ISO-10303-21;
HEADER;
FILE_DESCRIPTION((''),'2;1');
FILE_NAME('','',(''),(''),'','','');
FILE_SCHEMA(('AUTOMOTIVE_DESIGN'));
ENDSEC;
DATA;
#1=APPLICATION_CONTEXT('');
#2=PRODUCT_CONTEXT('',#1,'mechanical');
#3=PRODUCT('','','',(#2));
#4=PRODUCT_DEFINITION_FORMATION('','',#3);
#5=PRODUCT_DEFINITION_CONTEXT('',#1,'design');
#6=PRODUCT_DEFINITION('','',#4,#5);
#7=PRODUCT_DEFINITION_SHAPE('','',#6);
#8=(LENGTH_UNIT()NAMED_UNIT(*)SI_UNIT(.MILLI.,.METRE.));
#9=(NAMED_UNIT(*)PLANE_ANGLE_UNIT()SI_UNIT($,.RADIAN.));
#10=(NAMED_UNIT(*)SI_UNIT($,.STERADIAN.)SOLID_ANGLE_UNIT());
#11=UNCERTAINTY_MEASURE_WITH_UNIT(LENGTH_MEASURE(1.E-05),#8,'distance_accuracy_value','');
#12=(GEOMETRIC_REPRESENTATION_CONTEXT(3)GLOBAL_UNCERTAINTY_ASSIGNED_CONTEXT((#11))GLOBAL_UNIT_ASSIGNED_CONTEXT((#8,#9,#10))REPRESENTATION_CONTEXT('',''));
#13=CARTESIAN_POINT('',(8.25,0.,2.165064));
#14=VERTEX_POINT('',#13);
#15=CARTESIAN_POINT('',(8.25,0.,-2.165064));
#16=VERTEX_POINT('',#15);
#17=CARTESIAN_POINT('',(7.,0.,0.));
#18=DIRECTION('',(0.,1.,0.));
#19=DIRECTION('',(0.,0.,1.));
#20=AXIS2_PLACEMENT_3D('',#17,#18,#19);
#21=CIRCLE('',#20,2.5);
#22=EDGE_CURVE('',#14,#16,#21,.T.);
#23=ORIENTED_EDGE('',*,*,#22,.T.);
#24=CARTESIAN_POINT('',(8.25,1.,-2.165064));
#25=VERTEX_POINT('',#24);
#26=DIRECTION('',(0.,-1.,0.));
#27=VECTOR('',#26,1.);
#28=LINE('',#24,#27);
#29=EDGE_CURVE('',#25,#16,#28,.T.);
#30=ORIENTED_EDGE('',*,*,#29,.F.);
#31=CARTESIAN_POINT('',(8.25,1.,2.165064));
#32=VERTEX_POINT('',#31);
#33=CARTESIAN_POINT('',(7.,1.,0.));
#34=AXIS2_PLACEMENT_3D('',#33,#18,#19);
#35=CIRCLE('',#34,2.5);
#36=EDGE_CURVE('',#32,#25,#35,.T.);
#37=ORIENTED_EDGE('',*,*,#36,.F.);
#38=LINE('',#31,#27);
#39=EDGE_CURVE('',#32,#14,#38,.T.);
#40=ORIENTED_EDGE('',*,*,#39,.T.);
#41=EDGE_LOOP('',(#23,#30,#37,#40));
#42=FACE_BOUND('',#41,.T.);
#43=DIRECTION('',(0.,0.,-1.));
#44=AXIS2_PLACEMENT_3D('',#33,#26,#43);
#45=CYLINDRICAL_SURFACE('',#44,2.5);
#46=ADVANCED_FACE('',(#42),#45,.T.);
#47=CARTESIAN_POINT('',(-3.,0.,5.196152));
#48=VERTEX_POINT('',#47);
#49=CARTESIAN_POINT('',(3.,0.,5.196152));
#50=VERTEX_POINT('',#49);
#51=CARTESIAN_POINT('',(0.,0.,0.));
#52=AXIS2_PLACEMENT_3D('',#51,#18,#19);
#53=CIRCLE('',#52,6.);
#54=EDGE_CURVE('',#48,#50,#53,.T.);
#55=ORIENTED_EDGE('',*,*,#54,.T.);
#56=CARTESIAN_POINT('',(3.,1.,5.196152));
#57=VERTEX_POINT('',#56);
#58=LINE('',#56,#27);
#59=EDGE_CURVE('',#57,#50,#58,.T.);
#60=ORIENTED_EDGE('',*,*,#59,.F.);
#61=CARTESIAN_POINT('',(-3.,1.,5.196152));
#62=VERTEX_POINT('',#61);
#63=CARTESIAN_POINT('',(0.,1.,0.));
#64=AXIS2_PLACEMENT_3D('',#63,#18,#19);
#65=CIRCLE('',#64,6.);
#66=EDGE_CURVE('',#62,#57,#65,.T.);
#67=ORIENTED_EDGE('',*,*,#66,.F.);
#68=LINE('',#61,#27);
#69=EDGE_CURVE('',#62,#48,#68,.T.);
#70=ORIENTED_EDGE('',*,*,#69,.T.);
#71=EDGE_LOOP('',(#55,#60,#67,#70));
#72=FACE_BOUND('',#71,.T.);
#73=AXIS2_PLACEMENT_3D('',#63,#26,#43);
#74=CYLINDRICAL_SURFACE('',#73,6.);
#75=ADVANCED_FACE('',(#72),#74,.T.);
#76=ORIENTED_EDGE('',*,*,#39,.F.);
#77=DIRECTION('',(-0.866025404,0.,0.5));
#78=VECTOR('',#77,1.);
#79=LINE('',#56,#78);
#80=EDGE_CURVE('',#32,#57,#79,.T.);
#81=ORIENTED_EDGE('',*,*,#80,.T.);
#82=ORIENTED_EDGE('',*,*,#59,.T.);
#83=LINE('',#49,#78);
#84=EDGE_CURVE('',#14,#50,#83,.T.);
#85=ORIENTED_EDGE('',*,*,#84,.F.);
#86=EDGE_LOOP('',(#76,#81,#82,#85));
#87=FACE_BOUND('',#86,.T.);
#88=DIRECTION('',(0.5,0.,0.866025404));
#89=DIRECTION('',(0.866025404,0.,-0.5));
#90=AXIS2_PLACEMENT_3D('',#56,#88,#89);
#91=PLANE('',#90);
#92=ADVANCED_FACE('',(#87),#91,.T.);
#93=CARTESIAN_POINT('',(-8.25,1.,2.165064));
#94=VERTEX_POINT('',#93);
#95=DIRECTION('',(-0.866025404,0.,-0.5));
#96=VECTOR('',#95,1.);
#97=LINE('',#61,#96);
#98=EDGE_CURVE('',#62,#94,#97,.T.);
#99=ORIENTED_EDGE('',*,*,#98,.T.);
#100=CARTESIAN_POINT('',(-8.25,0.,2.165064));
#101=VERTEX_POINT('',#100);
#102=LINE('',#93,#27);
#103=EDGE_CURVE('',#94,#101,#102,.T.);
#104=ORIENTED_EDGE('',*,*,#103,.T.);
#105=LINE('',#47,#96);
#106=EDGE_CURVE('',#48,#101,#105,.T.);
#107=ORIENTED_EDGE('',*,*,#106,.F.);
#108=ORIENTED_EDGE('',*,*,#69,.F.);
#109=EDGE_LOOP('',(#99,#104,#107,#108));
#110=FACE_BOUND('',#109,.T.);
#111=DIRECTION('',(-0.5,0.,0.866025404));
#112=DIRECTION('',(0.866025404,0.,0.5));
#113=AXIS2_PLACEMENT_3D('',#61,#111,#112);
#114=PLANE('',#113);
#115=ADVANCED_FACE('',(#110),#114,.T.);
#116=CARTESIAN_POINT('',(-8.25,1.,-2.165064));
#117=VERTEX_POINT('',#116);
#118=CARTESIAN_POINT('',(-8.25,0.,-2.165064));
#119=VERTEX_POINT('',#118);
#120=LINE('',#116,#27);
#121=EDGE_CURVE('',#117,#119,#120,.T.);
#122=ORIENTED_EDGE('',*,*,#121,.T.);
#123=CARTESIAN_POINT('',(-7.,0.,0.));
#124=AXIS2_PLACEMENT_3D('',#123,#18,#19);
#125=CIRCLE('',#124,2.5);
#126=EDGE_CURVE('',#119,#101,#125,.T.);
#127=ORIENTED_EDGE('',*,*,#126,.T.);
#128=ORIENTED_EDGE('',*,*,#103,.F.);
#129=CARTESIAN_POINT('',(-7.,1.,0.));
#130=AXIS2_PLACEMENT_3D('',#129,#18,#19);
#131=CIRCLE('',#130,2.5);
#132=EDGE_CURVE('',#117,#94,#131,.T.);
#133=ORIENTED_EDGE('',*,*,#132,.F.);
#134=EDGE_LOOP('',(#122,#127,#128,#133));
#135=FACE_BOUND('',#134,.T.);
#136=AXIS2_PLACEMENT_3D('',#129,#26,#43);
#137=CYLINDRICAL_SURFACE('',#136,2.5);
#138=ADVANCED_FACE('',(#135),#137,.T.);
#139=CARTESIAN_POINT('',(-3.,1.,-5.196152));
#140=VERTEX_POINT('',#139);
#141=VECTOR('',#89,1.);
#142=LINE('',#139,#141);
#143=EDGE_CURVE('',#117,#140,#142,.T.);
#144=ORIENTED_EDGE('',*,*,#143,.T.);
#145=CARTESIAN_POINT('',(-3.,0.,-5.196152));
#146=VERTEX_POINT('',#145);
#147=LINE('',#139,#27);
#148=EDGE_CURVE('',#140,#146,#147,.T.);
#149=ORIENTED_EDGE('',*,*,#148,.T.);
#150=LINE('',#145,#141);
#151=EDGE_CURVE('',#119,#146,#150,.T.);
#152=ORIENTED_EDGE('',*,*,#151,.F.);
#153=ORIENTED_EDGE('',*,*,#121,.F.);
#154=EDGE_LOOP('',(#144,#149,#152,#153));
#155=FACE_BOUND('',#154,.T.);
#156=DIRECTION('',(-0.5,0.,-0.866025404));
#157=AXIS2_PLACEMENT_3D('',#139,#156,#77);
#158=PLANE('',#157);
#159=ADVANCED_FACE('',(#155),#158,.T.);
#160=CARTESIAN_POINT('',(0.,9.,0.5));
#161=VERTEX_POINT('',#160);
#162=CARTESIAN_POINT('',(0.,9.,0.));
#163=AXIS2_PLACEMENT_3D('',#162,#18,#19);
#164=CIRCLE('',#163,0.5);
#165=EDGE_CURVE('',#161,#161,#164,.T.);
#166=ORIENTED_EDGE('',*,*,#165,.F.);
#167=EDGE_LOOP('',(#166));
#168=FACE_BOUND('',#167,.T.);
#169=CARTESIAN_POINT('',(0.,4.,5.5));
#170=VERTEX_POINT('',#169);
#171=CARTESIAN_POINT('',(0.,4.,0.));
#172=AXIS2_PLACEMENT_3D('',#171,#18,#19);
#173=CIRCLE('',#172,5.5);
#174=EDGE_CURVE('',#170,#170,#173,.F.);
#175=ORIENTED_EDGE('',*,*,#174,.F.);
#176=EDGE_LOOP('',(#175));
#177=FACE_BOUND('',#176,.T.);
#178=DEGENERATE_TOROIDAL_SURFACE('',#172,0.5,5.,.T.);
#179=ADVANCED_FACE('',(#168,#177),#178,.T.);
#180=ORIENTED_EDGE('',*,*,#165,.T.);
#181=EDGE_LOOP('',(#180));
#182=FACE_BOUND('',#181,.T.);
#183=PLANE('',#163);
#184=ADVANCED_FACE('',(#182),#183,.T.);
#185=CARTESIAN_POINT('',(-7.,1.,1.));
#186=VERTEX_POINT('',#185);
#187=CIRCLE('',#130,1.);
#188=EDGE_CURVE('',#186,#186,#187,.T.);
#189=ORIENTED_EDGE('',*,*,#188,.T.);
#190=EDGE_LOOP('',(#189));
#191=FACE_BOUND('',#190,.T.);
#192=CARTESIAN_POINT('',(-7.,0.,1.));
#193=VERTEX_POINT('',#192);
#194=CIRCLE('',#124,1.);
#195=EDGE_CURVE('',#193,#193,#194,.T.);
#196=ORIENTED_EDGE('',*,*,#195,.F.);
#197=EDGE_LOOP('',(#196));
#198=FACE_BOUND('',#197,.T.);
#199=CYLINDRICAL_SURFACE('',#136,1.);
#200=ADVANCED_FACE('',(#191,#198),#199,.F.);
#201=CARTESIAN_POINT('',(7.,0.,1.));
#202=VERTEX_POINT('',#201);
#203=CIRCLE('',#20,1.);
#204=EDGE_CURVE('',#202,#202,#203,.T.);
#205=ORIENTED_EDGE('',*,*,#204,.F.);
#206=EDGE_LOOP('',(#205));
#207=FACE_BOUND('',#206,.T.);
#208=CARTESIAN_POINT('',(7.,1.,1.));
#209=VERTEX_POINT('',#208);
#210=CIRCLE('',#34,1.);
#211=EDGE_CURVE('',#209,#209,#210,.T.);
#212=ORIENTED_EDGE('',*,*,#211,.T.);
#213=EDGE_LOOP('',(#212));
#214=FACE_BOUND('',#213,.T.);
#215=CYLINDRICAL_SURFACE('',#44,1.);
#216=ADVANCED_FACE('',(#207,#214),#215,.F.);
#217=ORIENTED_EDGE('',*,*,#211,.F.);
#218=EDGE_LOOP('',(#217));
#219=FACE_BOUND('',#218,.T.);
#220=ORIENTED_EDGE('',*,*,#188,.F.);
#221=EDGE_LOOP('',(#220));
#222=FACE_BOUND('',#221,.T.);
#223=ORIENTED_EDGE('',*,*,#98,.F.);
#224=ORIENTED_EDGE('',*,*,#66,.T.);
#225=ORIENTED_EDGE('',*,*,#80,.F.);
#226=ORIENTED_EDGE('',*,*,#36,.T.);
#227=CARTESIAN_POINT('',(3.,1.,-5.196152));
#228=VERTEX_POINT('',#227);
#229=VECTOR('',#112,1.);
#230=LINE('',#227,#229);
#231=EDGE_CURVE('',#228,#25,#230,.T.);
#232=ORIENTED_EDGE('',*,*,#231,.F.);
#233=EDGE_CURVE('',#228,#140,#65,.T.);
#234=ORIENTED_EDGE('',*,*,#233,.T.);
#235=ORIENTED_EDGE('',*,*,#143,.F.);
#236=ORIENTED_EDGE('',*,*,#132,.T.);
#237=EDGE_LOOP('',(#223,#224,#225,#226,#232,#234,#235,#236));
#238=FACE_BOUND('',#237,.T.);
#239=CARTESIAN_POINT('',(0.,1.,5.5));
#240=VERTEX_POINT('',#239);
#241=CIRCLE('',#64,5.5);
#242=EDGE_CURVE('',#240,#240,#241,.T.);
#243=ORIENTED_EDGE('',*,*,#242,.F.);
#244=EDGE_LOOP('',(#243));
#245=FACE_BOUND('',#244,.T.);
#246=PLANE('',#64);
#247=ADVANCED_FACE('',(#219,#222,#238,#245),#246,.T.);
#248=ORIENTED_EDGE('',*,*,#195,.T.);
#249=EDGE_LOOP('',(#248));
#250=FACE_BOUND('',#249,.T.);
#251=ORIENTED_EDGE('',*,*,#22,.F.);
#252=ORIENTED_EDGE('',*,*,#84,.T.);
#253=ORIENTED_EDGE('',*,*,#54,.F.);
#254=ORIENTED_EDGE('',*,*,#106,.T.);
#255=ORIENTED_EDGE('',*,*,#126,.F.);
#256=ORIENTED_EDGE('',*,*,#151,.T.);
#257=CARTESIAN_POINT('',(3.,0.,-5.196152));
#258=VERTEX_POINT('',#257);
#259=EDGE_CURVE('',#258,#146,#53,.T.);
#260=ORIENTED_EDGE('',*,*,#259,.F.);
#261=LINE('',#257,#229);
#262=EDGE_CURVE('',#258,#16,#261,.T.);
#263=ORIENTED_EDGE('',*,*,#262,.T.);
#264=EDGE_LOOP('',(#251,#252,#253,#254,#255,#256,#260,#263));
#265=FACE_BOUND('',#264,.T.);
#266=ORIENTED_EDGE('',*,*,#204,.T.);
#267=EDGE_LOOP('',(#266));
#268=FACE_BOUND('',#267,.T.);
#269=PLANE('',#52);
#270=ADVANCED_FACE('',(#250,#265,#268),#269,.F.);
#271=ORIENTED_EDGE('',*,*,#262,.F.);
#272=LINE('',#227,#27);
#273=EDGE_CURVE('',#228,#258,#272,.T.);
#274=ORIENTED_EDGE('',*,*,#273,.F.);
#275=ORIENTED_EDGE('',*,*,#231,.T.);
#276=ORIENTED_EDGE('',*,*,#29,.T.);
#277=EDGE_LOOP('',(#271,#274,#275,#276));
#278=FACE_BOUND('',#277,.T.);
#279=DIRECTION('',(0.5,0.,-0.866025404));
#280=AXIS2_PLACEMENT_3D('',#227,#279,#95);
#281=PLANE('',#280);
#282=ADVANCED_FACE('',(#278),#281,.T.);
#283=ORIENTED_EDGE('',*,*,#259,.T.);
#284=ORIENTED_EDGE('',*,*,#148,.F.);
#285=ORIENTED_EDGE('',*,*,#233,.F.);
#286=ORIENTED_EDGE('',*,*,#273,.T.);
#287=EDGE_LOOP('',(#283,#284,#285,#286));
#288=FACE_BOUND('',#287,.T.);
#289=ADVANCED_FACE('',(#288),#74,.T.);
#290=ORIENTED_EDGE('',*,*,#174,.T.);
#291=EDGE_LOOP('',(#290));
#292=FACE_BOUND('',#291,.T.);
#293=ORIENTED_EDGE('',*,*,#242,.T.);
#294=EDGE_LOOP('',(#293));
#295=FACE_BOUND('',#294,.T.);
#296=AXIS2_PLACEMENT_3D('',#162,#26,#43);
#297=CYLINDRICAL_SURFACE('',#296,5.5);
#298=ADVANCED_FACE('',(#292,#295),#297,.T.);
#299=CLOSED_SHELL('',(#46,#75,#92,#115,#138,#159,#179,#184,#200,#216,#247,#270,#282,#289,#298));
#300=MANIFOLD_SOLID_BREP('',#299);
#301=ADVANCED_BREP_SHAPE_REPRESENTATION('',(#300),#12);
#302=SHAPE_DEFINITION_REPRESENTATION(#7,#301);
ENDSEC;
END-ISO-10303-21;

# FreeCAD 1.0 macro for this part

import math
import FreeCAD as App
import Part
import Sketcher
from FreeCAD import Vector
Q = App.Units.Quantity


def edges_at(feature, points):
    """Names of the edges that pass closest to the given points."""
    edges = feature.Shape.Edges
    near = lambda p: min(range(len(edges)), key=lambda i: edges[i].distToShape(Part.Vertex(*p))[0])
    return sorted({f"Edge{near(p) + 1}" for p in points})

doc = App.newDocument("Part")
body = doc.addObject("PartDesign::Body", "Body")

# Sketch on XZ plane
sketch1 = doc.addObject("Sketcher::SketchObject", "Sketch")
body.addObject(sketch1)
sketch1.AttachmentSupport = (doc.XZ_Plane, [""])
sketch1.MapMode = "FlatFace"
sketch1.addGeometry([
    Part.LineSegment(Vector(3, 5.2, 0), Vector(8.2, 2.2, 0)),  # 0
    Part.ArcOfCircle(Part.Circle(Vector(7, 0, 0), Vector(0, 0, 1), 2.5), math.radians(0), math.radians(60)),  # 1
    Part.ArcOfCircle(Part.Circle(Vector(7, 0, 0), Vector(0, 0, 1), 2.5), math.radians(-60), math.radians(0)),  # 2
    Part.LineSegment(Vector(8.2, -2.2, 0), Vector(3, -5.2, 0)),  # 3
    Part.ArcOfCircle(Part.Circle(Vector(0, 0, 0), Vector(0, 0, 1), 6), math.radians(-120), math.radians(-60)),  # 4
    Part.LineSegment(Vector(-3, -5.2, 0), Vector(-8.2, -2.2, 0)),  # 5
    Part.ArcOfCircle(Part.Circle(Vector(-7, 0, 0), Vector(0, 0, 1), 2.5), math.radians(-180), math.radians(-120)),  # 6
    Part.ArcOfCircle(Part.Circle(Vector(-7, 0, 0), Vector(0, 0, 1), 2.5), math.radians(120), math.radians(180)),  # 7
    Part.LineSegment(Vector(-8.2, 2.2, 0), Vector(-3, 5.2, 0)),  # 8
    Part.ArcOfCircle(Part.Circle(Vector(0, 0, 0), Vector(0, 0, 1), 6), math.radians(60), math.radians(120)),  # 9
    Part.Circle(Vector(7, 0, 0), Vector(0, 0, 1), 1),  # 10
    Part.Circle(Vector(-7, 0, 0), Vector(0, 0, 1), 1),  # 11
], False)
sketch1.addConstraint([
    Sketcher.Constraint("Tangent", 0, 2, 1, 2),
    Sketcher.Constraint("Tangent", 1, 1, 2, 2),
    Sketcher.Constraint("Tangent", 2, 1, 3, 1),
    Sketcher.Constraint("Tangent", 3, 2, 4, 2),
    Sketcher.Constraint("Tangent", 4, 1, 5, 1),
    Sketcher.Constraint("Tangent", 5, 2, 6, 2),
    Sketcher.Constraint("Tangent", 6, 1, 7, 2),
    Sketcher.Constraint("Tangent", 7, 1, 8, 1),
    Sketcher.Constraint("Tangent", 8, 2, 9, 2),
    Sketcher.Constraint("Tangent", 9, 1, 0, 1),
    Sketcher.Constraint("Coincident", 4, 3, -1, 1),
    Sketcher.Constraint("Coincident", 9, 3, -1, 1),
    Sketcher.Constraint("Coincident", 10, 3, 1, 3),
    Sketcher.Constraint("Coincident", 11, 3, 6, 3),
    Sketcher.Constraint("Equal", 1, 2),
    Sketcher.Constraint("Equal", 2, 6),
    Sketcher.Constraint("Equal", 6, 7),
    Sketcher.Constraint("Equal", 4, 9),
    Sketcher.Constraint("Equal", 10, 11),
    Sketcher.Constraint("Symmetric", 1, 3, 6, 3, -1, 1),
    Sketcher.Constraint("PointOnObject", 1, 3, -1),
    Sketcher.Constraint("PointOnObject", 1, 1, -1),
    Sketcher.Constraint("PointOnObject", 6, 1, -1),
    Sketcher.Constraint("Diameter", 10, 2.0),
    Sketcher.Constraint("Radius", 4, 6.0),
    Sketcher.Constraint("Radius", 1, 2.5),
    Sketcher.Constraint("Angle", 0, Q("-30 deg")),
])
pad1 = doc.addObject("PartDesign::Pad", "Pad")
body.addObject(pad1)
pad1.Profile = sketch1
pad1.Length = 1
pad1.Reversed = True

# Sketch on XZ plane
sketch2 = doc.addObject("Sketcher::SketchObject", "Sketch001")
body.addObject(sketch2)
sketch2.AttachmentSupport = (doc.XZ_Plane, [""])
sketch2.MapMode = "FlatFace"
sketch2.AttachmentOffset = App.Placement(Vector(0, 0, -1), App.Rotation())
sketch2.addGeometry(Part.Circle(Vector(0, 0, 0), Vector(0, 0, 1), 6), False)
sketch2.addConstraint([
    Sketcher.Constraint("Coincident", 0, 3, -1, 1),
    Sketcher.Constraint("Diameter", 0, 11.0),
])
pad2 = doc.addObject("PartDesign::Pad", "Pad001")
body.addObject(pad2)
pad2.Profile = sketch2
pad2.Length = 8
pad2.Reversed = True
doc.recompute()

fillet = doc.addObject("PartDesign::Fillet", "Fillet")
body.addObject(fillet)
fillet.Base = (pad2, edges_at(pad2, [(0, 9, -5.5)]))
fillet.Radius = 5

doc.recompute()
